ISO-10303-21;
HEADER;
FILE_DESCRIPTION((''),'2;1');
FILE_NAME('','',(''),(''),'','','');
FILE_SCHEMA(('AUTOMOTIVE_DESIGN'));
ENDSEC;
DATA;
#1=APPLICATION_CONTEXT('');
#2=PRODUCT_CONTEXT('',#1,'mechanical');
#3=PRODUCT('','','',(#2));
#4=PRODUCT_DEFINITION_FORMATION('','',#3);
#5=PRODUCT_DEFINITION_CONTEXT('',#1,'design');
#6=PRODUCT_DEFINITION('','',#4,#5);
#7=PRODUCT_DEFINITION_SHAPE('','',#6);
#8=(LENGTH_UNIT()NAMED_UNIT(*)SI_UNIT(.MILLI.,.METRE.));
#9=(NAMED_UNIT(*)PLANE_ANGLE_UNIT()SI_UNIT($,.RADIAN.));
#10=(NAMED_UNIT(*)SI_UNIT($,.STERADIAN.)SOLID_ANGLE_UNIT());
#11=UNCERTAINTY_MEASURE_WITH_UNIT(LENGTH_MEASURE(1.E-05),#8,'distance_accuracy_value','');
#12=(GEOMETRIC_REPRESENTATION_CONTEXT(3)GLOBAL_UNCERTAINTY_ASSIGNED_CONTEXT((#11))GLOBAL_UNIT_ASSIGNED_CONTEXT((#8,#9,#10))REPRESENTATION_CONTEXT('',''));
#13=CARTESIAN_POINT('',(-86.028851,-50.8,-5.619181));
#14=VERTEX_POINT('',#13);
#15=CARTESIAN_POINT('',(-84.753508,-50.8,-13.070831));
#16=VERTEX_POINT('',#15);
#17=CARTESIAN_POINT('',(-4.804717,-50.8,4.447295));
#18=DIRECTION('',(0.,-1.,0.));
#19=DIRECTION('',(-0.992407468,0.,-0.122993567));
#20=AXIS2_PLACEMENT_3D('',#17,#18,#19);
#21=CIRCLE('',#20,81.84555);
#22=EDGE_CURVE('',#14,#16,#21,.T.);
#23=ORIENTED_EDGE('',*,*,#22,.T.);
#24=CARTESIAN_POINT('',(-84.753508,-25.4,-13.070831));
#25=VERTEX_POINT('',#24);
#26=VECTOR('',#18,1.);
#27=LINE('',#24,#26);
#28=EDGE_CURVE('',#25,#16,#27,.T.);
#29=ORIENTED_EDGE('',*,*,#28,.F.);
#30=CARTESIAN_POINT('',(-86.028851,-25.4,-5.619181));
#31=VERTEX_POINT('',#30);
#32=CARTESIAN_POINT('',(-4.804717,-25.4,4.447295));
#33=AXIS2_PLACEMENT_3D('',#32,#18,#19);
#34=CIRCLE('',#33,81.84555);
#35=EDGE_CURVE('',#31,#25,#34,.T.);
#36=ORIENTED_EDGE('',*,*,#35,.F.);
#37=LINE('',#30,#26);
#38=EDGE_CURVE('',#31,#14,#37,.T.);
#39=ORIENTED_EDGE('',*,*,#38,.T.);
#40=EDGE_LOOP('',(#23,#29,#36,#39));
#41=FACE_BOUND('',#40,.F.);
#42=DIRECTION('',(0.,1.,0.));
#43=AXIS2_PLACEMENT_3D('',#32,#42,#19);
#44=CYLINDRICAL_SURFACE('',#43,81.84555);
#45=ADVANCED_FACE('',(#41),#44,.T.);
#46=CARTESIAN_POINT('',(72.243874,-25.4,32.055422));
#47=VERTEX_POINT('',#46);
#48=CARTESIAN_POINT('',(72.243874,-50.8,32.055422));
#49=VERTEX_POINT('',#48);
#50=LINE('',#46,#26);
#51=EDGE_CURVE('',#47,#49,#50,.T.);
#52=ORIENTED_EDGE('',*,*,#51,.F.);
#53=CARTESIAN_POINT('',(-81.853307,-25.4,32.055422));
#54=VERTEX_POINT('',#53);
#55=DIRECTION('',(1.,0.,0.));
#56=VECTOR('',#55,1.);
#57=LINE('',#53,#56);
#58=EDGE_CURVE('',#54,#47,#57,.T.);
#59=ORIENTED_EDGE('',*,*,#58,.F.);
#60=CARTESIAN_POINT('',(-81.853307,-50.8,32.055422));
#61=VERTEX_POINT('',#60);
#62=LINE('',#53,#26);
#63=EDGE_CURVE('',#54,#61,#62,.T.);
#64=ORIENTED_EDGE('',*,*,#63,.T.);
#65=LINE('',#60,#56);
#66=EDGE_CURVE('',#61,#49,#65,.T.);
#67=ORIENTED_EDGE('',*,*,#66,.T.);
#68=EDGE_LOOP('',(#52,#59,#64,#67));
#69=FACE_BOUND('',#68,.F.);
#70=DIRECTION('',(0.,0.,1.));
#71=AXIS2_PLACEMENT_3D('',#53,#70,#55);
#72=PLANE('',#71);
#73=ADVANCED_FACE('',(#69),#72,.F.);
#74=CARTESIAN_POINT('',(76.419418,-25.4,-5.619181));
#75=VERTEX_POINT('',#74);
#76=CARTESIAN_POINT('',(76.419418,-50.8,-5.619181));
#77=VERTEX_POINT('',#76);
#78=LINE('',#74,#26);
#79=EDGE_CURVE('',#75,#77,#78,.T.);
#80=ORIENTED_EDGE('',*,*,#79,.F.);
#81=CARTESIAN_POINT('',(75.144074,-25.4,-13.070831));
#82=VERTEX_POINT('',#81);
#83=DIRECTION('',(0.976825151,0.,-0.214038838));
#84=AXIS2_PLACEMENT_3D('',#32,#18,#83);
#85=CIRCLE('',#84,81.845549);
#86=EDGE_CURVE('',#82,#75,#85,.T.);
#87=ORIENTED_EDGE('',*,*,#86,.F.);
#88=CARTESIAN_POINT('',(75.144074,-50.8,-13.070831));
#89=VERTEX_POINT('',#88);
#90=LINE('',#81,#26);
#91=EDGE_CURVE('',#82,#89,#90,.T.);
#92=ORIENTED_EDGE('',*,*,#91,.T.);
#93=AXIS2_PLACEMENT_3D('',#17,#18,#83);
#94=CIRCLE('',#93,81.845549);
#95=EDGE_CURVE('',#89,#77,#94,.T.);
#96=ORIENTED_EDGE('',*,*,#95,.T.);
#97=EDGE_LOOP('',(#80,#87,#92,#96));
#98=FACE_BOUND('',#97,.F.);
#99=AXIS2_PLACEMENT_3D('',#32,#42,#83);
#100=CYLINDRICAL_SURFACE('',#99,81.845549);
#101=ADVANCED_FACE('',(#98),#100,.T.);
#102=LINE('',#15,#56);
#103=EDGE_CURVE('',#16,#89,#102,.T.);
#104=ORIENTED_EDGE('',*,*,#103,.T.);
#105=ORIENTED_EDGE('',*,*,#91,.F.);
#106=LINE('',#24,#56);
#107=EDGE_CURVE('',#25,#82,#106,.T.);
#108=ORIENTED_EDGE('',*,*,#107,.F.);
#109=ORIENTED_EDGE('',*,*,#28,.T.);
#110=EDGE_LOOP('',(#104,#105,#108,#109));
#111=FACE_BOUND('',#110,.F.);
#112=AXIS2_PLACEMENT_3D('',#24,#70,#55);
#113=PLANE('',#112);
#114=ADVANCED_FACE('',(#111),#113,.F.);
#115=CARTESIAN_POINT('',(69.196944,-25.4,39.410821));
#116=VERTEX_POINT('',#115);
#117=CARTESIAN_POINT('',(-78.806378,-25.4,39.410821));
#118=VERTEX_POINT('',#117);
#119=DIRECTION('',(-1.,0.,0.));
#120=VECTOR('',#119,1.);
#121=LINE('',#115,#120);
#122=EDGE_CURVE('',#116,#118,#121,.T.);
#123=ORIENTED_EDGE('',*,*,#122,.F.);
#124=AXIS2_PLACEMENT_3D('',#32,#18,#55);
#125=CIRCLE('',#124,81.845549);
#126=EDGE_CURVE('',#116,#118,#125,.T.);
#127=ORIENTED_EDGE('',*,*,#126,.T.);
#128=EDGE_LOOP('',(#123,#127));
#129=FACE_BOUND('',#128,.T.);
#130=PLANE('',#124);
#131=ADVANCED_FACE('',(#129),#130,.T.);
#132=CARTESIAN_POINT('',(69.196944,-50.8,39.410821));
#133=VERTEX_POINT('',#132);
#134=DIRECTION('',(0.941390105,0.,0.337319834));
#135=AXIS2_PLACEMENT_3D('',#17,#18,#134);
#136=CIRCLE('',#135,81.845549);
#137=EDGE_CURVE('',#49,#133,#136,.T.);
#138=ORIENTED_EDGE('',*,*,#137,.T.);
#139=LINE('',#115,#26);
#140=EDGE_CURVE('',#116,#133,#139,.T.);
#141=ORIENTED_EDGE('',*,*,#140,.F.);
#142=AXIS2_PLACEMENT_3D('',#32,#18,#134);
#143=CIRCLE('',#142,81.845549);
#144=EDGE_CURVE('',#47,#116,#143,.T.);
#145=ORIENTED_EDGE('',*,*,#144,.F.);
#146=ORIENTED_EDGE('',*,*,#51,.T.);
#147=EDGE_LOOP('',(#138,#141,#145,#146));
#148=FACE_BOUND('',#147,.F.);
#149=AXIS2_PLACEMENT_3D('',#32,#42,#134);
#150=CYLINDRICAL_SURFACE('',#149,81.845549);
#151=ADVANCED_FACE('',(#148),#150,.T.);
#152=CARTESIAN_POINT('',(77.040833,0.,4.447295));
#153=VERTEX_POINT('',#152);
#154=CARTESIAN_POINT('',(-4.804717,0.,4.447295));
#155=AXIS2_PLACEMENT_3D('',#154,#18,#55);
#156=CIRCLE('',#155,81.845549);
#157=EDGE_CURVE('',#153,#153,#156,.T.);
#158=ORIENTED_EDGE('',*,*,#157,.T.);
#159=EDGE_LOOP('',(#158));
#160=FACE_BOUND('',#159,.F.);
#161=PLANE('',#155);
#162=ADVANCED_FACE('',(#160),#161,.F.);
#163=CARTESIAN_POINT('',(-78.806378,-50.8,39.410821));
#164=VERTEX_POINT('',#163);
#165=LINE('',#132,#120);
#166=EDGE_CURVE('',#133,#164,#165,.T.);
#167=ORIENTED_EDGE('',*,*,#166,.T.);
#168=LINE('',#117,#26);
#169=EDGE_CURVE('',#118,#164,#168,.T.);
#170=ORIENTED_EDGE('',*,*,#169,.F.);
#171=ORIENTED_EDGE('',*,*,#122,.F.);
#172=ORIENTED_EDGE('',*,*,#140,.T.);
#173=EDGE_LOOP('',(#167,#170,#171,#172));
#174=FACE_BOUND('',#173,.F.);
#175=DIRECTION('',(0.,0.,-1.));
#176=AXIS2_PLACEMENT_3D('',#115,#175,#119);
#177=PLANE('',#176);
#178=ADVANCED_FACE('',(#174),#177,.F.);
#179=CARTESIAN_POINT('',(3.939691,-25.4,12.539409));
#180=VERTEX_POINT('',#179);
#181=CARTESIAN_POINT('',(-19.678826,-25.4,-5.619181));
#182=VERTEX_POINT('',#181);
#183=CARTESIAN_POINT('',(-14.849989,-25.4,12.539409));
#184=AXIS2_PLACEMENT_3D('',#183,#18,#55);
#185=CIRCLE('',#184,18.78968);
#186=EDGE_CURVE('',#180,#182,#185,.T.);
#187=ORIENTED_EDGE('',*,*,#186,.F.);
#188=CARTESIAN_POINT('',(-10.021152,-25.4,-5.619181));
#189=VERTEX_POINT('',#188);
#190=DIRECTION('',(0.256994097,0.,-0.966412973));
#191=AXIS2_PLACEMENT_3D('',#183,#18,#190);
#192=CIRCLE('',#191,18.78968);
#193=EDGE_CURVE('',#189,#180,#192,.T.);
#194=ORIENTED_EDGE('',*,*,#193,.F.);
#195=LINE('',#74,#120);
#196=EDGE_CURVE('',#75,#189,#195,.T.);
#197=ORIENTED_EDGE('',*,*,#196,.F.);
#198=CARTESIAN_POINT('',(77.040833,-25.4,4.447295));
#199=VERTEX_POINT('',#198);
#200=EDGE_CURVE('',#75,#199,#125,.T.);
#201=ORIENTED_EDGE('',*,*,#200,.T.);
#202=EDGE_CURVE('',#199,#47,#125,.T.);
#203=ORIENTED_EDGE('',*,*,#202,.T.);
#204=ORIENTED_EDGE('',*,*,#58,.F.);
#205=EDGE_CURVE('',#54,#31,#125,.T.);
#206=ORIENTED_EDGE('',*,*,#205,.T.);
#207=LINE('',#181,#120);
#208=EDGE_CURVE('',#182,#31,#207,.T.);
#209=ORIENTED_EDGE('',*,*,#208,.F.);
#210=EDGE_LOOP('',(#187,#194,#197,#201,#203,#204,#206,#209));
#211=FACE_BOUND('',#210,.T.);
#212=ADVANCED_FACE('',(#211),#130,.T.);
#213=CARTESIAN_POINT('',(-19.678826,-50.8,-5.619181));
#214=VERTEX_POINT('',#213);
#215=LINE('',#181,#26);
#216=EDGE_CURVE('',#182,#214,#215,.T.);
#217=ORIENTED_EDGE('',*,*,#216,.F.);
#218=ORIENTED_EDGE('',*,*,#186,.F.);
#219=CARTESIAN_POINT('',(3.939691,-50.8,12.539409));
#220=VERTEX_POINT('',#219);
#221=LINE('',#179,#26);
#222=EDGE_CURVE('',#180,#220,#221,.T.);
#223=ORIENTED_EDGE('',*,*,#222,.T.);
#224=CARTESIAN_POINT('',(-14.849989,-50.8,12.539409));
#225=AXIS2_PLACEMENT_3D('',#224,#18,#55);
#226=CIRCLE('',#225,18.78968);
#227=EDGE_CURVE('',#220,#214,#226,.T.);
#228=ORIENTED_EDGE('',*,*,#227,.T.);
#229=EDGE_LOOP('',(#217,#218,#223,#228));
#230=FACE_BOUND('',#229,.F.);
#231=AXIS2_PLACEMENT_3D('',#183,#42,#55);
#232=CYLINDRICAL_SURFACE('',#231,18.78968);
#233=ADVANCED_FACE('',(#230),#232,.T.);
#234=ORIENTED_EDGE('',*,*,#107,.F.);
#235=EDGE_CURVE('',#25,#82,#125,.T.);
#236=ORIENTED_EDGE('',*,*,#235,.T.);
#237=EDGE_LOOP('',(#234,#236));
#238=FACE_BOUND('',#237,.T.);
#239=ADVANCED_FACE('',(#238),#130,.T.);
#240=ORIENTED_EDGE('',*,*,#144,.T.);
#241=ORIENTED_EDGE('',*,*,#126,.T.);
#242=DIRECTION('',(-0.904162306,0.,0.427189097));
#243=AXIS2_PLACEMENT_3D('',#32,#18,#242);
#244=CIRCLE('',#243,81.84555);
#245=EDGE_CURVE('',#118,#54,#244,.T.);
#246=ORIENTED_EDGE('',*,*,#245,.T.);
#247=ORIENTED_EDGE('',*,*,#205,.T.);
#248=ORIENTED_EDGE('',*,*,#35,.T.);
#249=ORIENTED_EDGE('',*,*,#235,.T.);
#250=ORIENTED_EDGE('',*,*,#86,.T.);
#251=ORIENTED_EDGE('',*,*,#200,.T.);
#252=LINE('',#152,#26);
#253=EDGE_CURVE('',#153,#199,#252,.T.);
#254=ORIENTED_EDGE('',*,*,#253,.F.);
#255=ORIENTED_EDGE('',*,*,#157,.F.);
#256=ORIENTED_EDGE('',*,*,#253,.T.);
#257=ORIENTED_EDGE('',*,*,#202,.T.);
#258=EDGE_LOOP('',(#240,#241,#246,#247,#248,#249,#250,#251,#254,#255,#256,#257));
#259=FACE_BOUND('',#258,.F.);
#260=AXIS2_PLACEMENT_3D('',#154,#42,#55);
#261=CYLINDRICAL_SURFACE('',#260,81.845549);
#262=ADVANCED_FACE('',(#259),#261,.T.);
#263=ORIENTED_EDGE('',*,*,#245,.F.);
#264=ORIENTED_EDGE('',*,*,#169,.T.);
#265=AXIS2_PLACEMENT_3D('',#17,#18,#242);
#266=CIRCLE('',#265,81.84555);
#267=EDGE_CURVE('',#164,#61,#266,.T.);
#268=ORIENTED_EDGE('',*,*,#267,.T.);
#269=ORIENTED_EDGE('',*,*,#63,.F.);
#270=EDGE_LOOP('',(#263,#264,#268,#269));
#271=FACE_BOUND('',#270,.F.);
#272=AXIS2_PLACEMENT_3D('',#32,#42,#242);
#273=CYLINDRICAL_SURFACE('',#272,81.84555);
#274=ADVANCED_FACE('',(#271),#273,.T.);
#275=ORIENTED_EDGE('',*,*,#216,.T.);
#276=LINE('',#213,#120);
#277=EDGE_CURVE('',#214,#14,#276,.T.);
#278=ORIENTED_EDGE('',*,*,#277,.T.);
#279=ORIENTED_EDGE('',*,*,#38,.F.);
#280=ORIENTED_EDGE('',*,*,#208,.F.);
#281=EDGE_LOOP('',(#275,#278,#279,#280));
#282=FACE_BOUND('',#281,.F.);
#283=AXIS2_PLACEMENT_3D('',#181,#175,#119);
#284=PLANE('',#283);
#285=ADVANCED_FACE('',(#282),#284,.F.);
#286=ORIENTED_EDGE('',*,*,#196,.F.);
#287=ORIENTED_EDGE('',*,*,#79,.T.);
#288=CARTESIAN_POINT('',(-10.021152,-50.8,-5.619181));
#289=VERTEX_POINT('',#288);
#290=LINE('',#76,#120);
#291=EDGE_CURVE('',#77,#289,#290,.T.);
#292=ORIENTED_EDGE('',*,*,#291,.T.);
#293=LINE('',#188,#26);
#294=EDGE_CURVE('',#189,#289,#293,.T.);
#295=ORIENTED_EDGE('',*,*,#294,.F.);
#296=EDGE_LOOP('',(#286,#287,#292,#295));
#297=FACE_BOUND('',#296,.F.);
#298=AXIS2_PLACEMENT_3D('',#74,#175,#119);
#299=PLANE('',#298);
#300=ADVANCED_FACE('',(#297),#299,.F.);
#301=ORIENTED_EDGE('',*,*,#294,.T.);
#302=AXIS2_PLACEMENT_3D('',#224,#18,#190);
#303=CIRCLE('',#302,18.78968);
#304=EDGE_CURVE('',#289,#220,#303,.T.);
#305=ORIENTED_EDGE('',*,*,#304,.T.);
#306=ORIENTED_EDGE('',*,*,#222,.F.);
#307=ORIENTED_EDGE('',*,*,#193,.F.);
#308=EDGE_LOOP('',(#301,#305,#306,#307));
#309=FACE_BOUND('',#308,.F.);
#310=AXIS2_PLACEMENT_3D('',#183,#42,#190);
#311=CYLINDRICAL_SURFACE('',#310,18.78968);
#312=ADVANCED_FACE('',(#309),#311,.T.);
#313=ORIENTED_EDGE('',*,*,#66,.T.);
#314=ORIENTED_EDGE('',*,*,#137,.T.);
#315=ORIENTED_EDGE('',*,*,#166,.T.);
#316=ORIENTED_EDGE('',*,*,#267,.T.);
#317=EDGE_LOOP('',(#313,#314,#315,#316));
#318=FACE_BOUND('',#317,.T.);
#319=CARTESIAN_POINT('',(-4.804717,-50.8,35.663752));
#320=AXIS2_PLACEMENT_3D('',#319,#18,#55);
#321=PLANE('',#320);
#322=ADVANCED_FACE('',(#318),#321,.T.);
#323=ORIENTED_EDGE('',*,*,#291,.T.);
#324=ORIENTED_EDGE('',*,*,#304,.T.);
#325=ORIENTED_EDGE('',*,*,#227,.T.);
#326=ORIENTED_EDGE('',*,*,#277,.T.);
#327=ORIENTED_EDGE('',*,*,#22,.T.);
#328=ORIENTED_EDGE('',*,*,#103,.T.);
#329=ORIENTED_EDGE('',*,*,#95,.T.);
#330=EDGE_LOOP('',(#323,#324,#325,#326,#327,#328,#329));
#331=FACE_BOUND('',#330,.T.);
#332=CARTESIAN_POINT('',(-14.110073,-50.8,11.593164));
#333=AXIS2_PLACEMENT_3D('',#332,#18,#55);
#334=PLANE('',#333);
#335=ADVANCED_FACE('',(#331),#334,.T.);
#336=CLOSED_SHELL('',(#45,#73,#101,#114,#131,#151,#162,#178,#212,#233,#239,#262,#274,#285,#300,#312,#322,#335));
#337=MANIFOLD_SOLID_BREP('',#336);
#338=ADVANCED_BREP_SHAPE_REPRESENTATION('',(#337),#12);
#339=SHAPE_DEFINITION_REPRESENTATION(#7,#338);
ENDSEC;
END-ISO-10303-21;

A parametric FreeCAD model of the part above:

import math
import FreeCAD as App
import Part
import Sketcher

V = App.Vector
Q = App.Units.Quantity

doc = App.newDocument("Part")
body = doc.addObject("PartDesign::Body", "Body")

# Sketch on XZ plane
sketch1 = doc.addObject("Sketcher::SketchObject", "Sketch")
body.addObject(sketch1)
sketch1.AttachmentSupport = (doc.XZ_Plane, [""])
sketch1.MapMode = "FlatFace"
sketch1.addGeometry(Part.Circle(V(-5, 4, 0), V(0, 0, 1), 82), False)
sketch1.addConstraint(Sketcher.Constraint("Diameter", 0, 163.691099))
sketch1.addConstraint(Sketcher.Constraint("DistanceX", 0, 3, -1, 1, 4.804717))
sketch1.addConstraint(Sketcher.Constraint("DistanceY", -1, 1, 0, 3, 4.447295))
pad1 = doc.addObject("PartDesign::Pad", "Pad")
body.addObject(pad1)
pad1.Profile = sketch1
pad1.Length = Q("1 in")

# Sketch on XZ plane
sketch2 = doc.addObject("Sketcher::SketchObject", "Sketch001")
body.addObject(sketch2)
sketch2.AttachmentSupport = (doc.XZ_Plane, [""])
sketch2.MapMode = "FlatFace"
sketch2.AttachmentOffset = App.Placement(V(0, 0, 1 * 25.4), App.Rotation())
sketch2.addGeometry(Part.ArcOfCircle(Part.Circle(V(-15, 13, 0), V(0, 0, 1), 19), math.radians(-75), math.radians(0)), False)
sketch2.addGeometry(Part.ArcOfCircle(Part.Circle(V(-15, 13, 0), V(0, 0, 1), 19), math.radians(0), math.radians(255)), False)
sketch2.addGeometry(Part.LineSegment(V(-20, -6, 0), V(-86, -6, 0)), False)
sketch2.addGeometry(Part.ArcOfCircle(Part.Circle(V(-5, 4, 0), V(0, 0, 1), 82), math.radians(-172.94), math.radians(-167.64)), False)
sketch2.addGeometry(Part.LineSegment(V(-85, -13, 0), V(75, -13, 0)), False)
sketch2.addGeometry(Part.ArcOfCircle(Part.Circle(V(-5, 4, 0), V(0, 0, 1), 82), math.radians(-12.36), math.radians(-7.06)), False)
sketch2.addGeometry(Part.LineSegment(V(76, -6, 0), V(-10, -6, 0)), False)
sketch2.addGeometry(Part.ArcOfCircle(Part.Circle(V(-5, 4, 0), V(0, 0, 1), 82), math.radians(154.71), math.radians(160.29)), False)
sketch2.addGeometry(Part.LineSegment(V(-82, 32, 0), V(72, 32, 0)), False)
sketch2.addGeometry(Part.ArcOfCircle(Part.Circle(V(-5, 4, 0), V(0, 0, 1), 82), math.radians(19.71), math.radians(25.29)), False)
sketch2.addGeometry(Part.LineSegment(V(69, 39, 0), V(-79, 39, 0)), False)
sketch2.addConstraint(Sketcher.Constraint("Tangent", 0, 2, 1, 1))
sketch2.addConstraint(Sketcher.Constraint("Coincident", 1, 2, 2, 1))
sketch2.addConstraint(Sketcher.Constraint("Coincident", 2, 2, 3, 1))
sketch2.addConstraint(Sketcher.Constraint("Coincident", 3, 2, 4, 1))
sketch2.addConstraint(Sketcher.Constraint("Coincident", 4, 2, 5, 1))
sketch2.addConstraint(Sketcher.Constraint("Coincident", 5, 2, 6, 1))
sketch2.addConstraint(Sketcher.Constraint("Coincident", 6, 2, 0, 1))
sketch2.addConstraint(Sketcher.Constraint("Coincident", 7, 2, 8, 1))
sketch2.addConstraint(Sketcher.Constraint("Coincident", 8, 2, 9, 1))
sketch2.addConstraint(Sketcher.Constraint("Coincident", 9, 2, 10, 1))
sketch2.addConstraint(Sketcher.Constraint("Coincident", 10, 2, 7, 1))
sketch2.addConstraint(Sketcher.Constraint("Horizontal", 2))
sketch2.addConstraint(Sketcher.Constraint("Horizontal", 4))
sketch2.addConstraint(Sketcher.Constraint("Horizontal", 6))
sketch2.addConstraint(Sketcher.Constraint("Horizontal", 8))
sketch2.addConstraint(Sketcher.Constraint("Horizontal", 10))
sketch2.addConstraint(Sketcher.Constraint("Coincident", 5, 3, 3, 3))
sketch2.addConstraint(Sketcher.Constraint("Coincident", 7, 3, 3, 3))
sketch2.addConstraint(Sketcher.Constraint("Coincident", 9, 3, 3, 3))
sketch2.addConstraint(Sketcher.Constraint("Equal", 0, 1))
sketch2.addConstraint(Sketcher.Constraint("Equal", 3, 5))
sketch2.addConstraint(Sketcher.Constraint("Equal", 5, 7))
sketch2.addConstraint(Sketcher.Constraint("Equal", 7, 9))
sketch2.addConstraint(Sketcher.Constraint("Horizontal", 1, 3, 0, 2))
sketch2.addConstraint(Sketcher.Constraint("Horizontal", 2, 2, 5, 2))
sketch2.addConstraint(Sketcher.Constraint("Radius", 0, 18.78968))
sketch2.addConstraint(Sketcher.Constraint("Radius", 3, 81.84555))
sketch2.addConstraint(Sketcher.Constraint("DistanceX", 6, 2, 6, 1, 86.44057))
sketch2.addConstraint(Sketcher.Constraint("DistanceX", 8, 1, 8, 2, 154.097181))
sketch2.addConstraint(Sketcher.Constraint("DistanceX", 10, 2, 10, 1, 148.003321))
sketch2.addConstraint(Sketcher.Constraint("DistanceX", 3, 2, 7, 2, 2.900201))
sketch2.addConstraint(Sketcher.Constraint("DistanceX", 2, 2, 2, 1, 66.350026))
sketch2.addConstraint(Sketcher.Constraint("DistanceX", 0, 3, -1, 1, 14.849989))
sketch2.addConstraint(Sketcher.Constraint("DistanceY", -1, 1, 0, 3, 12.539409))
sketch2.addConstraint(Sketcher.Constraint("DistanceY", 1, 2, -1, 1, 5.619181))
pad2 = doc.addObject("PartDesign::Pad", "Pad001")
body.addObject(pad2)
pad2.Profile = sketch2
pad2.Length = Q("1 in")

doc.recompute()
